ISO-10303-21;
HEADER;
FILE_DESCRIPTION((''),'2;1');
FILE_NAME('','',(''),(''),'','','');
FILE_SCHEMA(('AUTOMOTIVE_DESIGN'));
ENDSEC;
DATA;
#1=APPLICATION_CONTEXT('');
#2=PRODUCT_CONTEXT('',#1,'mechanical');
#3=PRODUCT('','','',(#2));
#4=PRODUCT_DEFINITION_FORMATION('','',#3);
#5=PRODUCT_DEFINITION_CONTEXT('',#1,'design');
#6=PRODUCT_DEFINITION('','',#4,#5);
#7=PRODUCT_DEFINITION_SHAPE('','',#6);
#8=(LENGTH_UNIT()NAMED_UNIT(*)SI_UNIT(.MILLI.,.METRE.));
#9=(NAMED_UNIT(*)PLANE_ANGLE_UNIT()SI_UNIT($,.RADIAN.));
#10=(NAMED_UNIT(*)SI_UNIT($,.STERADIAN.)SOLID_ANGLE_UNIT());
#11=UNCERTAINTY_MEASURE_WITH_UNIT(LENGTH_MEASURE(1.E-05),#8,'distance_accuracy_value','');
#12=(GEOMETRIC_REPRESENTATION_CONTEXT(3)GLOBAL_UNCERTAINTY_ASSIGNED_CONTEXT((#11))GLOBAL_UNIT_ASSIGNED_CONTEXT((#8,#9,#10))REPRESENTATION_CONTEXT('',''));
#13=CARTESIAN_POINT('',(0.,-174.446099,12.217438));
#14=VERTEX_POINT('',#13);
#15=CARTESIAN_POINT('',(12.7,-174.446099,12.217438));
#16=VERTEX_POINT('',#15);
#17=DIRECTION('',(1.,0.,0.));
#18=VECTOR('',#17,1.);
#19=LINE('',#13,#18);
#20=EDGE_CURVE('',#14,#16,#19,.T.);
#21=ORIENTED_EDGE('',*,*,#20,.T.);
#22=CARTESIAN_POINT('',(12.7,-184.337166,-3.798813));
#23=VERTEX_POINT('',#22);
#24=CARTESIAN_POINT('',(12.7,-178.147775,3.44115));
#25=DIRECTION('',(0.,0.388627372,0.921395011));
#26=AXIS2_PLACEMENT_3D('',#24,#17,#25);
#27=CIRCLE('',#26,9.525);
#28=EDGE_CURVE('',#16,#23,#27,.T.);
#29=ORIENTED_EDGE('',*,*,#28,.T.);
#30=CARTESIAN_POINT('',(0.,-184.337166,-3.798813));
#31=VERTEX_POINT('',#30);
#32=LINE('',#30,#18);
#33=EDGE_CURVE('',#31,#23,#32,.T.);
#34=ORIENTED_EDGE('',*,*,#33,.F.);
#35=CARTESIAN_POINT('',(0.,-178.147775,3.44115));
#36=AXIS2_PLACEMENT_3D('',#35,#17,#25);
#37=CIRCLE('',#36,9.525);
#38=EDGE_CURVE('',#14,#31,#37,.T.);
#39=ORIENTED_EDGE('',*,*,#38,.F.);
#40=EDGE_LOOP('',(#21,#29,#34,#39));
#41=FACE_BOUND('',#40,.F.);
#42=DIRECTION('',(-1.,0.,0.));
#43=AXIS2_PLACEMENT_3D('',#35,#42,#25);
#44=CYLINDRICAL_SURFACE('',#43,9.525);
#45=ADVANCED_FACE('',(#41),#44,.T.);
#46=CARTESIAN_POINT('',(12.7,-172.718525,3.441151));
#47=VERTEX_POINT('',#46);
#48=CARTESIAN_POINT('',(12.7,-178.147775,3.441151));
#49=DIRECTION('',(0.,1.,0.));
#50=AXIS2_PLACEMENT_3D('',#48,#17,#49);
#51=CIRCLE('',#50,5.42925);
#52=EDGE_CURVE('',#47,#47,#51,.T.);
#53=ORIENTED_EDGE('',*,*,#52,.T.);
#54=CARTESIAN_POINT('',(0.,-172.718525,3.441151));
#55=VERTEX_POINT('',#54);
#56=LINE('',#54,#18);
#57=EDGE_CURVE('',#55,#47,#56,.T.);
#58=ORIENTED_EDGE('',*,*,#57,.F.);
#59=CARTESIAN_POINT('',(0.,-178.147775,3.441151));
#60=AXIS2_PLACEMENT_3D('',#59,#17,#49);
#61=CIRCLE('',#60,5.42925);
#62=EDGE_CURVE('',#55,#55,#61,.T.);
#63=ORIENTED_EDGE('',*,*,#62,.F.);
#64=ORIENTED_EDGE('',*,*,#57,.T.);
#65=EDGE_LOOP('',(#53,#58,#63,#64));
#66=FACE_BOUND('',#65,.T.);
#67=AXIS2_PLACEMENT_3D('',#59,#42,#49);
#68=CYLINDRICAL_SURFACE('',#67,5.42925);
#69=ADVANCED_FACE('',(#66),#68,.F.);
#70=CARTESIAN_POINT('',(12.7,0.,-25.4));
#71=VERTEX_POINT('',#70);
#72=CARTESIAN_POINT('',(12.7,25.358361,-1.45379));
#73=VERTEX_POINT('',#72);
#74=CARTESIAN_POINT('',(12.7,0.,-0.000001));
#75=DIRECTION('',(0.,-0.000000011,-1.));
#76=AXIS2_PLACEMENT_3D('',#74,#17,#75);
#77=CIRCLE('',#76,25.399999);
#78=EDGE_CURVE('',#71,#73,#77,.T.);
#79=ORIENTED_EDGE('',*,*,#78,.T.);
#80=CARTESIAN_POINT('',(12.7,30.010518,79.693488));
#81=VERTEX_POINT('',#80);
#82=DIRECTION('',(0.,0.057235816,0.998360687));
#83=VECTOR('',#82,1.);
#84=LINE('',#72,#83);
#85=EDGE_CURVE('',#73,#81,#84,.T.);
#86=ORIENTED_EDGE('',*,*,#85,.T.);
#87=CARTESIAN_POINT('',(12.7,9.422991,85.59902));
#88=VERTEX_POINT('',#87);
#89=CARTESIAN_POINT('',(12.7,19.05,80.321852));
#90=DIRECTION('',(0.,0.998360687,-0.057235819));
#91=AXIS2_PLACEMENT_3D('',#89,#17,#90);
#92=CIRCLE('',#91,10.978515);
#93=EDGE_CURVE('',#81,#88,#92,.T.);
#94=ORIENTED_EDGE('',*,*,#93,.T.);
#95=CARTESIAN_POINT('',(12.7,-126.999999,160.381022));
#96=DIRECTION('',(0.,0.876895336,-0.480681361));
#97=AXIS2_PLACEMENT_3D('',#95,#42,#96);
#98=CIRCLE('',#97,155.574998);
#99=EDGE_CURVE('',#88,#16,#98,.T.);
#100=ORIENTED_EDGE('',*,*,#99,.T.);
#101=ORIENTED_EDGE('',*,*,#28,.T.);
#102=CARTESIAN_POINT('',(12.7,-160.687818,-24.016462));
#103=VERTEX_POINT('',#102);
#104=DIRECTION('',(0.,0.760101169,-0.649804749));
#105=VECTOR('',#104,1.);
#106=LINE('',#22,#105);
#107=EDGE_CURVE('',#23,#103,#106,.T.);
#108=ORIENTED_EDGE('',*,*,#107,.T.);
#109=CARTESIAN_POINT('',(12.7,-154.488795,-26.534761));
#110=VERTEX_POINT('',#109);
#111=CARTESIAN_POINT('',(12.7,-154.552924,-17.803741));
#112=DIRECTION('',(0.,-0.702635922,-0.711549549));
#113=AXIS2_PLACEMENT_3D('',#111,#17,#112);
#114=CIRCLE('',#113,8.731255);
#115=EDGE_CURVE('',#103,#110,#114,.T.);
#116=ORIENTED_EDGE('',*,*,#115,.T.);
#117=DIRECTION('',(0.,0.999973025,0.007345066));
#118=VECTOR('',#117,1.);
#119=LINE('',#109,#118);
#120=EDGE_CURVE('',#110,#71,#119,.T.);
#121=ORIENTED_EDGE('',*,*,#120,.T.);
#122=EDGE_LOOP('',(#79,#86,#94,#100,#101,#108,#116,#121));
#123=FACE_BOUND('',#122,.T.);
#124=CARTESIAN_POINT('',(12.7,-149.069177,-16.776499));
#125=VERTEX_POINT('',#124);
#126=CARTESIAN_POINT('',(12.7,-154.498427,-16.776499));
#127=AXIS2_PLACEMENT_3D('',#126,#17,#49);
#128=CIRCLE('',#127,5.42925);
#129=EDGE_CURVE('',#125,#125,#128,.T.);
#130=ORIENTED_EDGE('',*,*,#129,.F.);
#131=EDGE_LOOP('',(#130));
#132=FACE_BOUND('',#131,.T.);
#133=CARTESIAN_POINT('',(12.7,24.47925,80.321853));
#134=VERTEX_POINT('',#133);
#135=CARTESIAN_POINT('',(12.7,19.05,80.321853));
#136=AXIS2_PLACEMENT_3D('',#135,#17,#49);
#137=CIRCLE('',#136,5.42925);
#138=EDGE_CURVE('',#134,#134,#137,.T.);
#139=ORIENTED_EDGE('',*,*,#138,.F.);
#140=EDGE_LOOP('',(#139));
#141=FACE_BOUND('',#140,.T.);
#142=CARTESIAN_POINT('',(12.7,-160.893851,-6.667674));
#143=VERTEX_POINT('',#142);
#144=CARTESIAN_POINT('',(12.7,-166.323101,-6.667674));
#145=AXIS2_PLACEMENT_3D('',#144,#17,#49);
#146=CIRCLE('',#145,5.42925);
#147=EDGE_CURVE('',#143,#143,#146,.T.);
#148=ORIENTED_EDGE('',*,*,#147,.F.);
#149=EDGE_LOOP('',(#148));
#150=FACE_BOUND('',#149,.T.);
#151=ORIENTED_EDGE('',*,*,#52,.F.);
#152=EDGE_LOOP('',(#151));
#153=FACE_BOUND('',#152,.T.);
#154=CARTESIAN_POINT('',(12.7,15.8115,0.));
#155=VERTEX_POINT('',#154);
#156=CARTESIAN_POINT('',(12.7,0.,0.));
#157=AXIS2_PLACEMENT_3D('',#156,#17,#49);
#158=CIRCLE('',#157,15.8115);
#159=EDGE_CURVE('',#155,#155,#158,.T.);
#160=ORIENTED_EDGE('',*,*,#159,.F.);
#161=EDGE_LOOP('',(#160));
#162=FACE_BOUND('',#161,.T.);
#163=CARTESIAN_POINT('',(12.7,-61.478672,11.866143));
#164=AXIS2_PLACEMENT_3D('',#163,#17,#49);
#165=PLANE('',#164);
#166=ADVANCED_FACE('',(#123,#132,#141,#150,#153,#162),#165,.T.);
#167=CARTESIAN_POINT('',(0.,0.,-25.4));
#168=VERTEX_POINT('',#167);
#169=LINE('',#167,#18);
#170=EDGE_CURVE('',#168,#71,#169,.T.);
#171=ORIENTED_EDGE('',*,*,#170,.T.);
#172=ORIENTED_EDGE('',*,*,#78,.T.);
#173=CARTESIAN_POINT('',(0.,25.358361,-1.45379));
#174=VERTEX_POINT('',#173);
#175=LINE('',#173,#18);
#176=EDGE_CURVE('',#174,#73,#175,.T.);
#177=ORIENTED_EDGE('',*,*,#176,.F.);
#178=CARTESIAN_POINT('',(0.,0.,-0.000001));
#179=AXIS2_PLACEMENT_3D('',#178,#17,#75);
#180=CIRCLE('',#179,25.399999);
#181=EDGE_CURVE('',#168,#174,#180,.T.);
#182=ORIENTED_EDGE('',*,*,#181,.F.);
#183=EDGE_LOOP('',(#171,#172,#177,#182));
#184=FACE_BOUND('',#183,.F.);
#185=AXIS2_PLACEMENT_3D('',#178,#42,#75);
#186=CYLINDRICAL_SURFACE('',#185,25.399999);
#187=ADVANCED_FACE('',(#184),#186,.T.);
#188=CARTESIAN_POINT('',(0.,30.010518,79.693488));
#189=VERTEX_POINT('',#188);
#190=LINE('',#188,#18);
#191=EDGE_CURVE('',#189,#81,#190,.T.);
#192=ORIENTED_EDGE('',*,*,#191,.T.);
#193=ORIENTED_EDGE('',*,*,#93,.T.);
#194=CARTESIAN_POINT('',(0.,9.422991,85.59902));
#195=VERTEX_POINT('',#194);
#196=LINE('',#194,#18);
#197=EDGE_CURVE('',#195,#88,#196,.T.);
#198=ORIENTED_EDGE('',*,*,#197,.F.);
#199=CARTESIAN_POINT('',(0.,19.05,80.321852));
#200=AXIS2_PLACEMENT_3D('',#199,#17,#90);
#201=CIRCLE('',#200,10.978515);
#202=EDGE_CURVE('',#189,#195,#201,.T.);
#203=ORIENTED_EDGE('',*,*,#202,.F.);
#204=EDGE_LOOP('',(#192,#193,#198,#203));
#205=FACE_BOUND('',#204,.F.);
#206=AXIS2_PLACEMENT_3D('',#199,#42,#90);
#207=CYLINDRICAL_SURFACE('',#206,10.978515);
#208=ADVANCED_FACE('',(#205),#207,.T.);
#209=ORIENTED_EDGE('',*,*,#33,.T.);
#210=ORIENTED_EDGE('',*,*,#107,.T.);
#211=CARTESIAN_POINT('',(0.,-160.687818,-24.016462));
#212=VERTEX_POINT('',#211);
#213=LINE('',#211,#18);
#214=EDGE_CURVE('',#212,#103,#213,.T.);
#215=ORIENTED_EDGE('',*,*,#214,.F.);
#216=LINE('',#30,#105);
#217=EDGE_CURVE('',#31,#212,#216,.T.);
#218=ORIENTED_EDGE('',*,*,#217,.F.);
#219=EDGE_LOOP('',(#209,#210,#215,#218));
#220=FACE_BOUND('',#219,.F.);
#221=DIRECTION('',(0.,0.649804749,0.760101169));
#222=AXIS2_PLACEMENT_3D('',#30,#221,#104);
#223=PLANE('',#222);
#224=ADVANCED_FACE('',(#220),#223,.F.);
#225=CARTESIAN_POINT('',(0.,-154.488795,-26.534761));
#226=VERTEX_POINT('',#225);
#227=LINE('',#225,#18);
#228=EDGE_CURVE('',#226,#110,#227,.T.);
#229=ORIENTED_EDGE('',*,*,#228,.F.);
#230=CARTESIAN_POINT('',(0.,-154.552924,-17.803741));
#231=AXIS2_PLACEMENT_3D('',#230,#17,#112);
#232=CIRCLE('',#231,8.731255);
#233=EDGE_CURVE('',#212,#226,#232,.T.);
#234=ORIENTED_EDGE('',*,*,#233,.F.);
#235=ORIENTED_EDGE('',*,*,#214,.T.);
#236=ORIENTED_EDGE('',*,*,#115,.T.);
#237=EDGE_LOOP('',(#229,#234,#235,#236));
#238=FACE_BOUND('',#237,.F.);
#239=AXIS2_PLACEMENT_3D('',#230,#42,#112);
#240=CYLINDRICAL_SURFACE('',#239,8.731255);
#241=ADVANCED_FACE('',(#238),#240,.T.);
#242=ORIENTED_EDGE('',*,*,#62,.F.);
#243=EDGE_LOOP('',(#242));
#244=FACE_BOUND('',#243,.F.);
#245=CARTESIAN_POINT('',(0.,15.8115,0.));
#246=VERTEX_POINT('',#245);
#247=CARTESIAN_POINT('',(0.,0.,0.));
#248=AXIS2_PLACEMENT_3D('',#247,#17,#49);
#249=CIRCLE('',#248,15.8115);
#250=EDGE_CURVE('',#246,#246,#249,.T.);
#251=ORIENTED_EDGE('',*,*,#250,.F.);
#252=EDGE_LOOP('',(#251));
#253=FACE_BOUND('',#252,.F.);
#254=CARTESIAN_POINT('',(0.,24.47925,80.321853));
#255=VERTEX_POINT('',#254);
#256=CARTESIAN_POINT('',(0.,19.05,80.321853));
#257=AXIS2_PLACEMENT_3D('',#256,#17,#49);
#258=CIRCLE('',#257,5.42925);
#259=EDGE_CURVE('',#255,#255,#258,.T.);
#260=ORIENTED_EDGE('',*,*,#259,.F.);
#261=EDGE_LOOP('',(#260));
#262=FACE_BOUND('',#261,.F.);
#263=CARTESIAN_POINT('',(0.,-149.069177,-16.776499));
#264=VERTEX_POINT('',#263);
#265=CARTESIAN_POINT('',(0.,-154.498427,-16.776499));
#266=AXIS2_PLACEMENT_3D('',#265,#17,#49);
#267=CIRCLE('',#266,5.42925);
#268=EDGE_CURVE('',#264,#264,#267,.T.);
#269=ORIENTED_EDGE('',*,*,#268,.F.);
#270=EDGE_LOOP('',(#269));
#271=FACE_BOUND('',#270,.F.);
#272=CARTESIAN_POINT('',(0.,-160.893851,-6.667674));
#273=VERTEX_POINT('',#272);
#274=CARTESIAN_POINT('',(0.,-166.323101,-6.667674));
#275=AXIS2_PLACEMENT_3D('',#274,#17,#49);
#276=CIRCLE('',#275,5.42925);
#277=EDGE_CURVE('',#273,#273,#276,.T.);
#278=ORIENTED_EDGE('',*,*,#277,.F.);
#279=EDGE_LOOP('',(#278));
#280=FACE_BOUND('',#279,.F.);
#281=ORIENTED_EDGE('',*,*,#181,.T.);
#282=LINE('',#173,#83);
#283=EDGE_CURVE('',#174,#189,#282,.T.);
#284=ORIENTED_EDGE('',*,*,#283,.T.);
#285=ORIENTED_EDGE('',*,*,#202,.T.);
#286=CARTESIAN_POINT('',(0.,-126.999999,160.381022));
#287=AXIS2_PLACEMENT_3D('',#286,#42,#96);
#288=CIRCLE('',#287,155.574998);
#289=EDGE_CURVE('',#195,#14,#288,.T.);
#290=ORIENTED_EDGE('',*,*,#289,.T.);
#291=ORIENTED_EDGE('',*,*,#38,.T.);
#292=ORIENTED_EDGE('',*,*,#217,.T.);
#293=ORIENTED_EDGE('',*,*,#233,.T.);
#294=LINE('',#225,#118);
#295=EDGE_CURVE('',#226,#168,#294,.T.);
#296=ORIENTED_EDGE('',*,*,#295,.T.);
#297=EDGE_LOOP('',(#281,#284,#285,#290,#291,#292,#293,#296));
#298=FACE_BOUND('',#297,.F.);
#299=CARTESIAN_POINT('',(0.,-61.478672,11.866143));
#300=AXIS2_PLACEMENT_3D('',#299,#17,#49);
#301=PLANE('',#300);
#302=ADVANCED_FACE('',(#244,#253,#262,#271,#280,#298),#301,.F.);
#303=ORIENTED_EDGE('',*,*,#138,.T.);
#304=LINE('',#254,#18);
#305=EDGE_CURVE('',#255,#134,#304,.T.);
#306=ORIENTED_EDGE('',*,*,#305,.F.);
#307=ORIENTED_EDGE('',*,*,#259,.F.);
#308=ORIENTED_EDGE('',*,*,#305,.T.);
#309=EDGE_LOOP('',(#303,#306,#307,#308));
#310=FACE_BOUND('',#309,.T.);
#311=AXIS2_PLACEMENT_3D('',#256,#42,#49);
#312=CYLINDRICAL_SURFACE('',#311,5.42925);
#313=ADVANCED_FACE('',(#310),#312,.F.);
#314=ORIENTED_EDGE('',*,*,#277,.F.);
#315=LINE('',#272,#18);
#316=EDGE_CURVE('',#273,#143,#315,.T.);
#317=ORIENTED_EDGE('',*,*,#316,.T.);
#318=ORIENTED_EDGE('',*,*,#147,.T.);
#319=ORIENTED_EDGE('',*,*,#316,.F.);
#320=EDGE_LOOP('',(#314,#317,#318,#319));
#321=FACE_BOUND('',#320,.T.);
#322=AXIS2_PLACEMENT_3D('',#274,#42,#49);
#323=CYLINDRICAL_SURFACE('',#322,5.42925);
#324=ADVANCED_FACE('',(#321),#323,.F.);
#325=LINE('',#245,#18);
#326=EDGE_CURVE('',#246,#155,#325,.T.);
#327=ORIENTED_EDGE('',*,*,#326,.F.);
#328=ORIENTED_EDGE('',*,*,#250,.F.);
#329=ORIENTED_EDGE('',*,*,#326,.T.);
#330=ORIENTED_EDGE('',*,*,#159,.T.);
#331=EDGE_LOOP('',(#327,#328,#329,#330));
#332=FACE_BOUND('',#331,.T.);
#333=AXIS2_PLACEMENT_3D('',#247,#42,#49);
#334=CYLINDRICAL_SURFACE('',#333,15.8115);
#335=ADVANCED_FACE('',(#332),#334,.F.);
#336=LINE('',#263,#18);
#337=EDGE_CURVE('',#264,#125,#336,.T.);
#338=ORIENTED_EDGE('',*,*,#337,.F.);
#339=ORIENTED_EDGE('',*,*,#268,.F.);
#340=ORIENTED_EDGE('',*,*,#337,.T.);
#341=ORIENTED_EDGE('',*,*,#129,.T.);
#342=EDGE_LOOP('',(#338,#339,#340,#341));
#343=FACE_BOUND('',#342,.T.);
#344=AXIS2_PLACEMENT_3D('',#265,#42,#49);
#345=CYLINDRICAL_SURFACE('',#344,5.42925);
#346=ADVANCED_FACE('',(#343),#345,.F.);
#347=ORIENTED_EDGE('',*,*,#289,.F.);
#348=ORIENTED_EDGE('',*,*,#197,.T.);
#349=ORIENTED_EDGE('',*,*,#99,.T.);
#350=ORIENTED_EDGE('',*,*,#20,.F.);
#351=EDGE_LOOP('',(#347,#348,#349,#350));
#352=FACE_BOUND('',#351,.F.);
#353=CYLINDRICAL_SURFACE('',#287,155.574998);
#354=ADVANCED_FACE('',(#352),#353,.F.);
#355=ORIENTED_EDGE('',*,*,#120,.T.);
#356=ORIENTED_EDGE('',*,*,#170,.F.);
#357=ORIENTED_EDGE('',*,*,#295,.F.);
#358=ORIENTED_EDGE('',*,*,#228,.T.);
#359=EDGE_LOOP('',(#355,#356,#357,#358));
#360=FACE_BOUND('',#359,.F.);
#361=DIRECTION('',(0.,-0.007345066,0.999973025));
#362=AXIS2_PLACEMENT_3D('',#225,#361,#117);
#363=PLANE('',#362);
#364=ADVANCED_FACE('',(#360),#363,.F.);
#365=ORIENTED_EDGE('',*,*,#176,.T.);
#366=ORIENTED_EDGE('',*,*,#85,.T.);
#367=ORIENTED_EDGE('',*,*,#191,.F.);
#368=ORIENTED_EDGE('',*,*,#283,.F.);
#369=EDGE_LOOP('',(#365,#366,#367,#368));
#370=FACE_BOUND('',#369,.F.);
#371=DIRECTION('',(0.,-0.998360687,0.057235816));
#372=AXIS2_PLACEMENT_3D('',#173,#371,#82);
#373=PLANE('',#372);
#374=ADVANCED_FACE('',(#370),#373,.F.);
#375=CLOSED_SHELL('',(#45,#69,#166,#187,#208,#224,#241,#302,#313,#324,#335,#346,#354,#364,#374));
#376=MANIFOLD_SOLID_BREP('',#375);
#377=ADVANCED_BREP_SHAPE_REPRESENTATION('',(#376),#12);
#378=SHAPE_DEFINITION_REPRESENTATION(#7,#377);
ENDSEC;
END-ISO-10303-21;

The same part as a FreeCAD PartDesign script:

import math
import FreeCAD as App
import Part
import Sketcher
from FreeCAD import Vector
Q = App.Units.Quantity

doc = App.newDocument("Part")
body = doc.addObject("PartDesign::Body", "Body")

sketch1 = body.newObject("Sketcher::SketchObject", "Sketch")
sketch1.AttachmentSupport = (doc.getObject("YZ_Plane"), [""])
sketch1.MapMode = "FlatFace"
sketch1.addGeometry([
    Part.LineSegment(Vector(-154.488795, -26.534761, 0), Vector(0, -25.4, 0)),
    Part.ArcOfCircle(Part.Circle(Vector(0, -0.000001, 0), Vector(0, 0, 1), 25.399999), math.radians(-90.000001), math.radians(-3.281163)),
    Part.LineSegment(Vector(25.358361, -1.45379, 0), Vector(30.010518, 79.693488, 0)),
    Part.ArcOfCircle(Part.Circle(Vector(19.05, 80.321852, 0), Vector(0, 0, 1), 10.978515), math.radians(-3.281164), math.radians(151.270088)),
    Part.ArcOfCircle(Part.Circle(Vector(-126.999999, 160.381022, 0), Vector(0, 0, 1), 155.574998), math.radians(-107.756511), math.radians(-28.729912)),
    Part.ArcOfCircle(Part.Circle(Vector(-178.147775, 3.44115, 0), Vector(0, 0, 1), 9.525), math.radians(67.130883), math.radians(229.473112)),
    Part.LineSegment(Vector(-184.337166, -3.798813, 0), Vector(-160.687818, -24.016462, 0)),
    Part.ArcOfCircle(Part.Circle(Vector(-154.552924, -17.803741, 0), Vector(0, 0, 1), 8.731255), math.radians(-134.638869), math.radians(-89.57917)),
    Part.Circle(Vector(-154.498427, -16.776499, 0), Vector(0, 0, 1), 5.42925),
    Part.Circle(Vector(-166.323101, -6.667674, 0), Vector(0, 0, 1), 5.42925),
    Part.Circle(Vector(-178.147775, 3.441151, 0), Vector(0, 0, 1), 5.42925),
    Part.Circle(Vector(0, 0, 0), Vector(0, 0, 1), 15.8115),
    Part.Circle(Vector(19.05, 80.321853, 0), Vector(0, 0, 1), 5.42925),
], False)
sketch1.addConstraint([
    Sketcher.Constraint("Coincident", 0, 2, 1, 1),
    Sketcher.Constraint("Tangent", 1, 2, 2, 1),
    Sketcher.Constraint("Tangent", 2, 2, 3, 1),
    Sketcher.Constraint("Tangent", 3, 2, 4, 2),
    Sketcher.Constraint("Coincident", 4, 1, 5, 1),
    Sketcher.Constraint("Tangent", 5, 2, 6, 1),
    Sketcher.Constraint("Coincident", 6, 2, 7, 1),
    Sketcher.Constraint("Tangent", 7, 2, 0, 1),
    Sketcher.Constraint("Coincident", 1, 3, -1, 1),
    Sketcher.Constraint("Coincident", 11, 3, -1, 1),
    Sketcher.Constraint("Coincident", 10, 3, 5, 3),
    Sketcher.Constraint("Coincident", 12, 3, 3, 3),
    Sketcher.Constraint("Equal", 8, 9),
    Sketcher.Constraint("Equal", 9, 10),
    Sketcher.Constraint("Equal", 10, 12),
    Sketcher.Constraint("PointOnObject", 0, 2, -2),
    Sketcher.Constraint("Radius", 1, Q("1 in")),
    Sketcher.Constraint("Diameter", 11, Q("1.245 in")),
    Sketcher.Constraint("DistanceX", 4, 3, -1, 1, Q("5 in")),
    Sketcher.Constraint("Radius", 4, Q("6.1249999 in")),
    Sketcher.Constraint("Radius", 5, Q("0.375 in")),
    Sketcher.Constraint("Diameter", 8, Q("0.4275 in")),
    Sketcher.Constraint("DistanceX", -1, 1, 3, 3, Q("0.75 in")),
    Sketcher.Constraint("Distance", 0, Q("6.0824001 in")),
    Sketcher.Constraint("Radius", 3, Q("10.978515 mm")),
    Sketcher.Constraint("Radius", 7, Q("8.731255 mm")),
    Sketcher.Constraint("DistanceX", 5, 3, 6, 2, Q("0.6873999 in")),
    Sketcher.Constraint("DistanceY", 8, 3, -1, 1, Q("16.776499 mm")),
    Sketcher.Constraint("DistanceX", 9, 3, -1, 1, Q("166.323101 mm")),
    Sketcher.Constraint("DistanceX", 4, 1, -1, 1, Q("174.446099 mm")),
    Sketcher.Constraint("DistanceY", 7, 2, 6, 2, Q("2.518299 mm")),
    Sketcher.Constraint("Distance", 6, Q("31.113421 mm")),
    Sketcher.Constraint("DistanceY", -1, 1, 4, 3, Q("160.381022 mm")),
    Sketcher.Constraint("DistanceX", 8, 3, 4, 3, Q("27.498428 mm")),
    Sketcher.Constraint("DistanceY", 9, 3, 5, 2, Q("2.868861 mm")),
])
pad1 = body.newObject("PartDesign::Pad", "Pad")
pad1.Profile = sketch1
pad1.Length = Q("0.5 in")

doc.recompute()
